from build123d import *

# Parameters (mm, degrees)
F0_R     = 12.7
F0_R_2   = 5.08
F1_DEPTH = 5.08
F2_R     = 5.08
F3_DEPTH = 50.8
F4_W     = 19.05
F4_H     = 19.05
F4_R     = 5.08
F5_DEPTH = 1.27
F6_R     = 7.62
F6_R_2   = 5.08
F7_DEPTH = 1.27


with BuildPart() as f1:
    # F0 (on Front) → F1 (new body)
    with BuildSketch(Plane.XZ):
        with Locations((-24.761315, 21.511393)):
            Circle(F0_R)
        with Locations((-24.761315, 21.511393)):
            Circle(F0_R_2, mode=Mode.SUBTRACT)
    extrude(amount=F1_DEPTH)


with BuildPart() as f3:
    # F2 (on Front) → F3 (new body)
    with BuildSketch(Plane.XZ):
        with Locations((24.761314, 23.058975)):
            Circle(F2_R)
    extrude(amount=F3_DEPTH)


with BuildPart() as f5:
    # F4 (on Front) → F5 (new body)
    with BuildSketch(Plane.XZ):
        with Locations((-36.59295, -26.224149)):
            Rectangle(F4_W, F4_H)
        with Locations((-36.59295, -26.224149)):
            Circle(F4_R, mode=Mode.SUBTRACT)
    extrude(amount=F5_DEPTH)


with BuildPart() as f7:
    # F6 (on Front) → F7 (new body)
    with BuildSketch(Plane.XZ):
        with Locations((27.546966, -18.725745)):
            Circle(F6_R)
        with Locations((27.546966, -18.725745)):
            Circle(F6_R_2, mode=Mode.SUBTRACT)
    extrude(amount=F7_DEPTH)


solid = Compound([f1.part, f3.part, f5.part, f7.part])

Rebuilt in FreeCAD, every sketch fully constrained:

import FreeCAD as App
import Part
import Sketcher
from FreeCAD import Vector
Q = App.Units.Quantity

doc = App.newDocument("Part")
body = doc.addObject("PartDesign::Body", "Body")

sketch1 = body.newObject("Sketcher::SketchObject", "Sketch")
sketch1.AttachmentSupport = (doc.getObject("XZ_Plane"), [""])
sketch1.MapMode = "FlatFace"
sketch1.addGeometry([
    Part.Circle(Vector(-25, 22, 0), Vector(0, 0, 1), 13),
    Part.Circle(Vector(-25, 22, 0), Vector(0, 0, 1), 5),
], False)
sketch1.addConstraint([
    Sketcher.Constraint("Coincident", 1, 3, 0, 3),
    Sketcher.Constraint("Diameter", 0, Q("1 in")),
    Sketcher.Constraint("Diameter", 1, Q("0.4 in")),
    Sketcher.Constraint("DistanceX", 0, 3, -1, 1, Q("24.761315 mm")),
    Sketcher.Constraint("DistanceY", -1, 1, 0, 3, Q("21.511393 mm")),
])
pad1 = body.newObject("PartDesign::Pad", "Pad")
pad1.Profile = sketch1
pad1.Length = Q("0.2 in")
body2 = doc.addObject("PartDesign::Body", "Body001")

sketch2 = body2.newObject("Sketcher::SketchObject", "Sketch001")
sketch2.AttachmentSupport = (doc.getObject("XZ_Plane001"), [""])
sketch2.MapMode = "FlatFace"
sketch2.addGeometry(Part.Circle(Vector(25, 23, 0), Vector(0, 0, 1), 5), False)
sketch2.addConstraint([
    Sketcher.Constraint("Diameter", 0, Q("0.4 in")),
    Sketcher.Constraint("DistanceX", -1, 1, 0, 3, Q("24.761314 mm")),
    Sketcher.Constraint("DistanceY", -1, 1, 0, 3, Q("23.058975 mm")),
])
pad2 = body2.newObject("PartDesign::Pad", "Pad001")
pad2.Profile = sketch2
pad2.Length = Q("2 in")
body3 = doc.addObject("PartDesign::Body", "Body002")

sketch3 = body3.newObject("Sketcher::SketchObject", "Sketch002")
sketch3.AttachmentSupport = (doc.getObject("XZ_Plane002"), [""])
sketch3.MapMode = "FlatFace"
sketch3.addGeometry([
    Part.LineSegment(Vector(-46, -17, 0), Vector(-46, -36, 0)),
    Part.LineSegment(Vector(-46, -36, 0), Vector(-27, -36, 0)),
    Part.LineSegment(Vector(-27, -36, 0), Vector(-27, -17, 0)),
    Part.LineSegment(Vector(-27, -17, 0), Vector(-46, -17, 0)),
    Part.Circle(Vector(-37, -26, 0), Vector(0, 0, 1), 5),
], False)
sketch3.addConstraint([
    Sketcher.Constraint("Coincident", 0, 2, 1, 1),
    Sketcher.Constraint("Coincident", 1, 2, 2, 1),
    Sketcher.Constraint("Coincident", 2, 2, 3, 1),
    Sketcher.Constraint("Coincident", 3, 2, 0, 1),
    Sketcher.Constraint("Vertical", 0),
    Sketcher.Constraint("Horizontal", 1),
    Sketcher.Constraint("Vertical", 2),
    Sketcher.Constraint("Horizontal", 3),
    Sketcher.Constraint("Equal", 3, 0),
    Sketcher.Constraint("Diameter", 4, Q("0.4 in")),
    Sketcher.Constraint("DistanceX", 1, 1, 1, 2, Q("0.75 in")),
    Sketcher.Constraint("DistanceX", 0, 2, 4, 3, Q("0.375 in")),
    Sketcher.Constraint("DistanceY", 0, 2, 4, 3, Q("0.375 in")),
    Sketcher.Constraint("DistanceX", 4, 3, -1, 1, Q("36.59295 mm")),
    Sketcher.Constraint("DistanceY", 4, 3, -1, 1, Q("26.224149 mm")),
])
pad3 = body3.newObject("PartDesign::Pad", "Pad002")
pad3.Profile = sketch3
pad3.Length = Q("0.05 in")
body4 = doc.addObject("PartDesign::Body", "Body003")

sketch4 = body4.newObject("Sketcher::SketchObject", "Sketch003")
sketch4.AttachmentSupport = (doc.getObject("XZ_Plane003"), [""])
sketch4.MapMode = "FlatFace"
sketch4.addGeometry([
    Part.Circle(Vector(28, -19, 0), Vector(0, 0, 1), 8),
    Part.Circle(Vector(28, -19, 0), Vector(0, 0, 1), 5),
], False)
sketch4.addConstraint([
    Sketcher.Constraint("Coincident", 1, 3, 0, 3),
    Sketcher.Constraint("Diameter", 0, Q("0.6 in")),
    Sketcher.Constraint("Diameter", 1, Q("0.4 in")),
    Sketcher.Constraint("DistanceX", -1, 1, 0, 3, Q("27.546966 mm")),
    Sketcher.Constraint("DistanceY", 0, 3, -1, 1, Q("18.725745 mm")),
])
pad4 = body4.newObject("PartDesign::Pad", "Pad003")
pad4.Profile = sketch4
pad4.Length = Q("0.05 in")

doc.recompute()
